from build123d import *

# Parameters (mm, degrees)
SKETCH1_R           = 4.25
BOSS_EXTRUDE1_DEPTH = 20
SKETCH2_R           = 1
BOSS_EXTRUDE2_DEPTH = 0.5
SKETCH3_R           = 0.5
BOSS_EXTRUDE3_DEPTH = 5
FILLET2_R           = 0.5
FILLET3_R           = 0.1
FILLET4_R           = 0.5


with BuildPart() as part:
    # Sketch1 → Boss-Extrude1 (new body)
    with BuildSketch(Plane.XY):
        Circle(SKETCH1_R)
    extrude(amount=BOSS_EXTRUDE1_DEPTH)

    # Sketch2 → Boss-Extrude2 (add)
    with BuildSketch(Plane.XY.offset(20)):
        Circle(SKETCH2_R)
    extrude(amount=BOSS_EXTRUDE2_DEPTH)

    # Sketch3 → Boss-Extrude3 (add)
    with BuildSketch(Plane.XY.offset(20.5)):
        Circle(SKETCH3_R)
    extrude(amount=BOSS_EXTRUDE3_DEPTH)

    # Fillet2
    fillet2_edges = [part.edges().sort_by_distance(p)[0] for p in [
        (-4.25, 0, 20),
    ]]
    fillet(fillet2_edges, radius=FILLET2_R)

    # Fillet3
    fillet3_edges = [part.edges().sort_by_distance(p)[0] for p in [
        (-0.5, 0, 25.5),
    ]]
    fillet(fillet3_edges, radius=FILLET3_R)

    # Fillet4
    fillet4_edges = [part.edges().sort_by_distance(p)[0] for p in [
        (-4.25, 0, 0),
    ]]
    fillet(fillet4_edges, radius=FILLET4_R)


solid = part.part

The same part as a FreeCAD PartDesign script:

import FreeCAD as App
import Part
import Sketcher
Q = App.Units.Quantity


def edges_at(feature, points):
    """Names of the edges that pass closest to the given points."""
    edges = feature.Shape.Edges
    near = lambda p: min(range(len(edges)), key=lambda i: edges[i].distToShape(Part.Vertex(*p))[0])
    return sorted({f"Edge{near(p) + 1}" for p in points})

doc = App.newDocument("Part")
body = doc.addObject("PartDesign::Body", "Body")

sketch1 = body.newObject("Sketcher::SketchObject", "Sketch")
sketch1.AttachmentSupport = (doc.getObject("XY_Plane"), [""])
sketch1.MapMode = "FlatFace"
sketch1.addGeometry(Part.Circle(App.Vector(0, 0, 0), App.Vector(0, 0, 1), 4.2), False)
sketch1.addConstraint([
    Sketcher.Constraint("Coincident", 0, 3, -1, 1),
    Sketcher.Constraint("Diameter", 0, Q("8.5 mm")),
])
pad1 = body.newObject("PartDesign::Pad", "Pad")
pad1.Profile = sketch1
pad1.Length = 20

sketch2 = body.newObject("Sketcher::SketchObject", "Sketch001")
sketch2.AttachmentSupport = (doc.getObject("XY_Plane"), [""])
sketch2.MapMode = "FlatFace"
sketch2.AttachmentOffset = App.Placement(App.Vector(0, 0, 20), App.Rotation())
sketch2.addGeometry(Part.Circle(App.Vector(0, 0, 0), App.Vector(0, 0, 1), 1), False)
sketch2.addConstraint([
    Sketcher.Constraint("Coincident", 0, 3, -1, 1),
    Sketcher.Constraint("Diameter", 0, Q("2 mm")),
])
pad2 = body.newObject("PartDesign::Pad", "Pad001")
pad2.Profile = sketch2
pad2.Length = 0.5

sketch3 = body.newObject("Sketcher::SketchObject", "Sketch002")
sketch3.AttachmentSupport = (doc.getObject("XY_Plane"), [""])
sketch3.MapMode = "FlatFace"
sketch3.AttachmentOffset = App.Placement(App.Vector(0, 0, 20.5), App.Rotation())
sketch3.addGeometry(Part.Circle(App.Vector(0, 0, 0), App.Vector(0, 0, 1), 0.5), False)
sketch3.addConstraint([
    Sketcher.Constraint("Coincident", 0, 3, -1, 1),
    Sketcher.Constraint("Diameter", 0, Q("1 mm")),
])
pad3 = body.newObject("PartDesign::Pad", "Pad002")
pad3.Profile = sketch3
pad3.Length = 5
doc.recompute()

fillet = body.newObject("PartDesign::Fillet", "Fillet")
fillet.Base = (pad3, edges_at(pad3, [(-4.25, 0, 20)]))
fillet.Radius = 0.5
doc.recompute()

fillet2 = body.newObject("PartDesign::Fillet", "Fillet001")
fillet2.Base = (fillet, edges_at(fillet, [(-0.5, 0, 25.5)]))
fillet2.Radius = 0.1
doc.recompute()

fillet3 = body.newObject("PartDesign::Fillet", "Fillet002")
fillet3.Base = (fillet2, edges_at(fillet2, [(-4.25, 0, 0)]))
fillet3.Radius = 0.5

doc.recompute()
